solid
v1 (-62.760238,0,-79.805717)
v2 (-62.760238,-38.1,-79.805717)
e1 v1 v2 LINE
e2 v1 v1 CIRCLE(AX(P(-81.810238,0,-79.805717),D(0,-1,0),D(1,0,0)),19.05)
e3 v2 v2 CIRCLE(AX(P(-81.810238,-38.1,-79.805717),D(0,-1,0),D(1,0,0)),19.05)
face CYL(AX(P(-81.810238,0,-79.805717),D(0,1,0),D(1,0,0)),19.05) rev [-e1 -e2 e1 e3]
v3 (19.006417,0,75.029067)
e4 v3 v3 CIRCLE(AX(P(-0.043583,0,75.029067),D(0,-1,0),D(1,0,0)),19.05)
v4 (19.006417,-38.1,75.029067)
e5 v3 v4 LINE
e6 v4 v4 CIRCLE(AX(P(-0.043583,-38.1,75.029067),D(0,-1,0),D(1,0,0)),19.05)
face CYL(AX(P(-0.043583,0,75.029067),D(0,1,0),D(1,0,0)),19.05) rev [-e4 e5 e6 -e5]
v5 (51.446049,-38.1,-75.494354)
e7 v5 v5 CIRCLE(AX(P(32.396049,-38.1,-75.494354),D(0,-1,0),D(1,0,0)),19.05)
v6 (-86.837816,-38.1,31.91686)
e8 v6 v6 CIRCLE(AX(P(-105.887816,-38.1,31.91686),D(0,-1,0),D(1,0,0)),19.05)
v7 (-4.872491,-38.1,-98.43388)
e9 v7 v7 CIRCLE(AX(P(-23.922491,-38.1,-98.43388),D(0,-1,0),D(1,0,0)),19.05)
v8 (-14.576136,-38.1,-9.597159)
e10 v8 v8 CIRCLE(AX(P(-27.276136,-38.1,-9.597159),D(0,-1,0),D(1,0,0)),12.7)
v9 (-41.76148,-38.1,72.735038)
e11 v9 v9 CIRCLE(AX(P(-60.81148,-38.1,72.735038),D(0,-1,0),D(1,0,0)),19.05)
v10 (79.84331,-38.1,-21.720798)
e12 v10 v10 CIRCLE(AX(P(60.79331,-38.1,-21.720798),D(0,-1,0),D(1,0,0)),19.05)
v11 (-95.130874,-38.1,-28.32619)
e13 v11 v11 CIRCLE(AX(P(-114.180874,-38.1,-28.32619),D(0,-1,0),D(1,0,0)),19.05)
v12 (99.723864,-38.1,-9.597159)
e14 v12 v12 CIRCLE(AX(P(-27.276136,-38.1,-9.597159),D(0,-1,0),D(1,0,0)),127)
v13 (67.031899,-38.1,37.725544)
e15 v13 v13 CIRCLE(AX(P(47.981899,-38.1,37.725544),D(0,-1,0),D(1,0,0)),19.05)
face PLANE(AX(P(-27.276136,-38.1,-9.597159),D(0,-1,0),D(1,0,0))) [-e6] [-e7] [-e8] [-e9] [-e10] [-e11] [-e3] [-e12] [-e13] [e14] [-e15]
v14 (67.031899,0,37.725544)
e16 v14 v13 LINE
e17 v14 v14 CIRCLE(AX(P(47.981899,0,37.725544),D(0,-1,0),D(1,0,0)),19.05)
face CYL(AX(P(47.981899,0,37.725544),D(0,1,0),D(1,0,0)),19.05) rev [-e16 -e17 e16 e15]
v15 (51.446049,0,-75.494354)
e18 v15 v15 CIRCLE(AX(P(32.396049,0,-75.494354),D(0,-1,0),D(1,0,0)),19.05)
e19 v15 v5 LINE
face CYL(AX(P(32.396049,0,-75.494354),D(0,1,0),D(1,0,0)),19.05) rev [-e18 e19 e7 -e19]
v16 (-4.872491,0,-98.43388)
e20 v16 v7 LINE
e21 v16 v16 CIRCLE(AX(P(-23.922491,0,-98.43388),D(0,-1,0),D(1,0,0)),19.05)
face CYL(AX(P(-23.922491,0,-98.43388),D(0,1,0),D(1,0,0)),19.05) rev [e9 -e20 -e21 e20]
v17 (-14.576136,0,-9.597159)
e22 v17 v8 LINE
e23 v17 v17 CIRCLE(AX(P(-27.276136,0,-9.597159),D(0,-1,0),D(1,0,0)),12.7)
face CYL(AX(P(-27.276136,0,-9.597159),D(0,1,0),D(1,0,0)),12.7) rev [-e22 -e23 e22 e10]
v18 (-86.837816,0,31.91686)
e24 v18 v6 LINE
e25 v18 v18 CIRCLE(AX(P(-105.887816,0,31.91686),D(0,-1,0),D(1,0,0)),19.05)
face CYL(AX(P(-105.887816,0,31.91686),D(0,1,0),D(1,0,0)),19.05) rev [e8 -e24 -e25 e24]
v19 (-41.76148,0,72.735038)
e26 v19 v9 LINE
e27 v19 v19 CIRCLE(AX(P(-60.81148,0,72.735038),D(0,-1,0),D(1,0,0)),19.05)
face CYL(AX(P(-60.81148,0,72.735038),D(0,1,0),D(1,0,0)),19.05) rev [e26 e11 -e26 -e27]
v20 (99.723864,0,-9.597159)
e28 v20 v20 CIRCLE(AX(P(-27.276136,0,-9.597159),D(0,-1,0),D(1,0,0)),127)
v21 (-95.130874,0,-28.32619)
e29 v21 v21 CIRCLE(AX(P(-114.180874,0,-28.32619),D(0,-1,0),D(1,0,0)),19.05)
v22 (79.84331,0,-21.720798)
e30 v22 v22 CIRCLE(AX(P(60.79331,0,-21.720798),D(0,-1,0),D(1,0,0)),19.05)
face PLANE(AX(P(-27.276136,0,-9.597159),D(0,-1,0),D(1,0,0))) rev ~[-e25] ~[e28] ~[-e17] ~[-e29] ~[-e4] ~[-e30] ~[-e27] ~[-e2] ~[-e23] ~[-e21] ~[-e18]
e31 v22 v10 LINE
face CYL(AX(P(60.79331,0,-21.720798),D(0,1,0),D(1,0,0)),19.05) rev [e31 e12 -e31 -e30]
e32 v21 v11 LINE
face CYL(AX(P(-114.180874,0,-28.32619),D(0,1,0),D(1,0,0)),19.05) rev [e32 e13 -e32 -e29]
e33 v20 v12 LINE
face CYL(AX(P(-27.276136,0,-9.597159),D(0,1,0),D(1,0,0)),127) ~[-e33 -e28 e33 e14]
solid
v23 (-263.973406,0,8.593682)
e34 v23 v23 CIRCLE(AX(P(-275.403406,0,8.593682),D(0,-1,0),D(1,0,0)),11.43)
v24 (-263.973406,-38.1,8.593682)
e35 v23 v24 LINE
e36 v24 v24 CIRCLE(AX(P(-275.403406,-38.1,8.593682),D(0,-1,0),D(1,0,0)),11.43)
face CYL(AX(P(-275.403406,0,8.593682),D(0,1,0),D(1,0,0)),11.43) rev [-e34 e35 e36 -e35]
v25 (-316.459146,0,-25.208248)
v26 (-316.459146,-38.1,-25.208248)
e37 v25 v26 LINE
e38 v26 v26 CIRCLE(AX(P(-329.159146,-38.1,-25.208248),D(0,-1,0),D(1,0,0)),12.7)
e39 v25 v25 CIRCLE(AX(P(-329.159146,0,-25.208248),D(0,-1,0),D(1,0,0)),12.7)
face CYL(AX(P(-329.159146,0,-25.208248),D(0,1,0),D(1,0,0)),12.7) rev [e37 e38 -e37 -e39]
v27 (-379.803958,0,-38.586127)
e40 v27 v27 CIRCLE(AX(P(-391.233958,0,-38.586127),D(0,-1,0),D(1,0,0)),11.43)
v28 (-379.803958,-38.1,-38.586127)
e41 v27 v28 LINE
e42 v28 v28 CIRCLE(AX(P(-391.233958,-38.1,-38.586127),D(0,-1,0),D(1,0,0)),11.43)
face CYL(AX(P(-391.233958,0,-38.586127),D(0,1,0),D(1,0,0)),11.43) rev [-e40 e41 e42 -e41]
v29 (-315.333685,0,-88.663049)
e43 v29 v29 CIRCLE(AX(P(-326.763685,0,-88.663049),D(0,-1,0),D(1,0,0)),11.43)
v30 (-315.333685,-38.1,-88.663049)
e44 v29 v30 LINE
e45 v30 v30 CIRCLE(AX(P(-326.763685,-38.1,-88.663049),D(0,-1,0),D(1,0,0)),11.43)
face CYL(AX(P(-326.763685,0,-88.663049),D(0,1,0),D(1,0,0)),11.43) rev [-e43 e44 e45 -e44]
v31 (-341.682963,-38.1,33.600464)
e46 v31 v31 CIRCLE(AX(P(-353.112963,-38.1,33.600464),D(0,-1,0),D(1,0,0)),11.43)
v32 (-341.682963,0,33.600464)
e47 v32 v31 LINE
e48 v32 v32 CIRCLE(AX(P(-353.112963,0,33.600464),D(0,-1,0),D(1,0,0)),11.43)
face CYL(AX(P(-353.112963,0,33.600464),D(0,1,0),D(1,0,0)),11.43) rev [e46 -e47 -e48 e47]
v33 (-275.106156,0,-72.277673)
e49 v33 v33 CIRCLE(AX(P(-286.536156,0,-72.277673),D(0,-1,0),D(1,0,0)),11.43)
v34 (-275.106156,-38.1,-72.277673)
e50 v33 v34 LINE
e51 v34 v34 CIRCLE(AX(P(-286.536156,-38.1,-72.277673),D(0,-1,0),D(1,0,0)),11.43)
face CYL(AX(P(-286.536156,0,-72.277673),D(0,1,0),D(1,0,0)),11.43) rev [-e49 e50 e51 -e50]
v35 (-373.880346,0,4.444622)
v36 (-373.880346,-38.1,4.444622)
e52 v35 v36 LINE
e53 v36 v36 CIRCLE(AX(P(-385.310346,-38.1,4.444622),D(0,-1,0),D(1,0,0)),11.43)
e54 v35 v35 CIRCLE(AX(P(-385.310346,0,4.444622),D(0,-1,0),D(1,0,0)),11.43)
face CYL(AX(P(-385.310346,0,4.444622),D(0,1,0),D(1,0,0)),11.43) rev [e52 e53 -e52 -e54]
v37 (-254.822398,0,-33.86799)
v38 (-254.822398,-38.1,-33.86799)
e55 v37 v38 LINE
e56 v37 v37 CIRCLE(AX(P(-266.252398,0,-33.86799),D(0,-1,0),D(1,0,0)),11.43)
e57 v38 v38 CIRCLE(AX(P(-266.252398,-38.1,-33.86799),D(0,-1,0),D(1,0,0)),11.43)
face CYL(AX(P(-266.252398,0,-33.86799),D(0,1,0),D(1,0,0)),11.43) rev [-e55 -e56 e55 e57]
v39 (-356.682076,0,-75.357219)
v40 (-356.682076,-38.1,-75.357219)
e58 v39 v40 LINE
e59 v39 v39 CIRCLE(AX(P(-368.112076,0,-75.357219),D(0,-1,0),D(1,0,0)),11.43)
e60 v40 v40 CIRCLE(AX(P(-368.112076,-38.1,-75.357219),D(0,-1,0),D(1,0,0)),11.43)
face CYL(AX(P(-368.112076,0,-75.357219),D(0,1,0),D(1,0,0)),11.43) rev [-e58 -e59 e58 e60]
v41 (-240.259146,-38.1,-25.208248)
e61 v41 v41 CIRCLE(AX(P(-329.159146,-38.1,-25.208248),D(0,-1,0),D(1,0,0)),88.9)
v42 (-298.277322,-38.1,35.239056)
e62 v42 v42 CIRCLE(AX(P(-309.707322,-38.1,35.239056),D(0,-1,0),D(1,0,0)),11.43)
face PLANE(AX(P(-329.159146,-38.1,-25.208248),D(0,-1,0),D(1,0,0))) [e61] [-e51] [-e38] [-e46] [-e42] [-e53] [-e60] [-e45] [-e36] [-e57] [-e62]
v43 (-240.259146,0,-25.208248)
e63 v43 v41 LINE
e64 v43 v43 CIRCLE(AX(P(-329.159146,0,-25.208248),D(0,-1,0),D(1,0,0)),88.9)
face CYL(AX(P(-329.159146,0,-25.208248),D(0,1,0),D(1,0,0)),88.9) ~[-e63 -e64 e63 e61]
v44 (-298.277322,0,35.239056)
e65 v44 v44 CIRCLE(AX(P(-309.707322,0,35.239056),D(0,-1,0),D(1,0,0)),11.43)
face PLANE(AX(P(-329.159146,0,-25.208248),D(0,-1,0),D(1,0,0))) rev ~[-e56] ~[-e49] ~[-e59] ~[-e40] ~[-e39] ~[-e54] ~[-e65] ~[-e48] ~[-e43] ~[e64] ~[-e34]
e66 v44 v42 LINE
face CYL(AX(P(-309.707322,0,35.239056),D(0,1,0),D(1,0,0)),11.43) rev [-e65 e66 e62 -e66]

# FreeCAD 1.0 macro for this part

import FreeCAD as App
import Part
import Sketcher
Q = App.Units.Quantity

doc = App.newDocument("Part")
body = doc.addObject("PartDesign::Body", "Body")
body.AllowCompound = True

# Sketch on XZ plane
sketch1 = body.newObject("Sketcher::SketchObject", "Sketch")
sketch1.AttachmentSupport = (doc.getObject("XZ_Plane"), [""])
sketch1.MapMode = "FlatFace"
sketch1.addGeometry([
    Part.Circle(App.Vector(-27, -10, 0), App.Vector(0, 0, 1), 127),  # 0
    Part.Circle(App.Vector(-82, -80, 0), App.Vector(0, 0, 1), 19),  # 1
    Part.Circle(App.Vector(-114, -28, 0), App.Vector(0, 0, 1), 19),  # 2
    Part.Circle(App.Vector(-24, -98, 0), App.Vector(0, 0, 1), 19),  # 3
    Part.Circle(App.Vector(32, -75, 0), App.Vector(0, 0, 1), 19),  # 4
    Part.Circle(App.Vector(61, -22, 0), App.Vector(0, 0, 1), 19),  # 5
    Part.Circle(App.Vector(-106, 32, 0), App.Vector(0, 0, 1), 19),  # 6
    Part.Circle(App.Vector(-27, -10, 0), App.Vector(0, 0, 1), 13),  # 7
    Part.Circle(App.Vector(-61, 73, 0), App.Vector(0, 0, 1), 19),  # 8
    Part.Circle(App.Vector(48, 38, 0), App.Vector(0, 0, 1), 19),  # 9
    Part.Circle(App.Vector(0, 75, 0), App.Vector(0, 0, 1), 19),  # 10
    Part.Circle(App.Vector(-329, -25, 0), App.Vector(0, 0, 1), 89),  # 11
    Part.Circle(App.Vector(-368, -75, 0), App.Vector(0, 0, 1), 11),  # 12
    Part.Circle(App.Vector(-391, -39, 0), App.Vector(0, 0, 1), 11),  # 13
    Part.Circle(App.Vector(-327, -89, 0), App.Vector(0, 0, 1), 11),  # 14
    Part.Circle(App.Vector(-287, -72, 0), App.Vector(0, 0, 1), 11),  # 15
    Part.Circle(App.Vector(-266, -34, 0), App.Vector(0, 0, 1), 11),  # 16
    Part.Circle(App.Vector(-385, 4, 0), App.Vector(0, 0, 1), 11),  # 17
    Part.Circle(App.Vector(-329, -25, 0), App.Vector(0, 0, 1), 13),  # 18
    Part.Circle(App.Vector(-353, 34, 0), App.Vector(0, 0, 1), 11),  # 19
    Part.Circle(App.Vector(-275, 9, 0), App.Vector(0, 0, 1), 11),  # 20
    Part.Circle(App.Vector(-310, 35, 0), App.Vector(0, 0, 1), 11),  # 21
], False)
sketch1.addConstraint([
    Sketcher.Constraint("Coincident", 7, 3, 0, 3),
    Sketcher.Constraint("Coincident", 18, 3, 11, 3),
    Sketcher.Constraint("Equal", 1, 2),
    Sketcher.Constraint("Equal", 2, 3),
    Sketcher.Constraint("Equal", 3, 4),
    Sketcher.Constraint("Equal", 4, 5),
    Sketcher.Constraint("Equal", 5, 6),
    Sketcher.Constraint("Equal", 6, 8),
    Sketcher.Constraint("Equal", 8, 9),
    Sketcher.Constraint("Equal", 9, 10),
    Sketcher.Constraint("Equal", 12, 13),
    Sketcher.Constraint("Equal", 13, 14),
    Sketcher.Constraint("Equal", 14, 15),
    Sketcher.Constraint("Equal", 15, 16),
    Sketcher.Constraint("Equal", 16, 17),
    Sketcher.Constraint("Equal", 7, 18),
    Sketcher.Constraint("Equal", 17, 19),
    Sketcher.Constraint("Equal", 19, 20),
    Sketcher.Constraint("Equal", 20, 21),
    Sketcher.Constraint("Diameter", 0, Q("10 in")),
    Sketcher.Constraint("Diameter", 7, Q("1 in")),
    Sketcher.Constraint("Diameter", 11, Q("7 in")),
    Sketcher.Constraint("Diameter", 1, Q("1.5 in")),
    Sketcher.Constraint("Diameter", 12, Q("0.9 in")),
    Sketcher.Constraint("DistanceY", 3, 3, 5, 3, Q("3.0202001 in")),
    Sketcher.Constraint("DistanceX", 13, 3, 6, 3, Q("11.2341001 in")),
    Sketcher.Constraint("DistanceX", -1, 1, 9, 3, Q("47.981899 mm")),
    Sketcher.Constraint("DistanceX", 16, 3, -1, 1, Q("266.252398 mm")),
    Sketcher.Constraint("DistanceX", 1, 3, 0, 3, Q("54.534102 mm")),
    Sketcher.Constraint("DistanceX", 3, 3, 5, 3, Q("84.715801 mm")),
    Sketcher.Constraint("DistanceY", 4, 3, 9, 3, Q("113.219898 mm")),
    Sketcher.Constraint("DistanceX", 12, 3, 2, 3, Q("253.931202 mm")),
    Sketcher.Constraint("DistanceY", 1, 3, 12, 3, Q("4.448498 mm")),
    Sketcher.Constraint("DistanceY", 14, 3, 11, 3, Q("63.454801 mm")),
    Sketcher.Constraint("DistanceX", 13, 3, 15, 3, Q("104.697802 mm")),
    Sketcher.Constraint("DistanceX", 17, 3, 11, 3, Q("56.1512 mm")),
    Sketcher.Constraint("DistanceY", 0, 3, -1, 1, Q("9.597159 mm")),
    Sketcher.Constraint("DistanceX", 1, 3, -1, 1, Q("81.810238 mm")),
    Sketcher.Constraint("DistanceY", 2, 3, -1, 1, Q("28.32619 mm")),
    Sketcher.Constraint("DistanceX", 3, 3, -1, 1, Q("23.922491 mm")),
    Sketcher.Constraint("DistanceY", 3, 3, -1, 1, Q("98.43388 mm")),
    Sketcher.Constraint("DistanceX", -1, 1, 4, 3, Q("32.396049 mm")),
    Sketcher.Constraint("DistanceY", -1, 1, 6, 3, Q("31.91686 mm")),
    Sketcher.Constraint("DistanceX", 8, 3, -1, 1, Q("60.81148 mm")),
    Sketcher.Constraint("DistanceY", -1, 1, 8, 3, Q("72.735038 mm")),
    Sketcher.Constraint("DistanceY", 11, 3, -1, 1, Q("25.208248 mm")),
    Sketcher.Constraint("DistanceY", 12, 3, -1, 1, Q("75.357219 mm")),
    Sketcher.Constraint("DistanceY", 16, 3, -1, 1, Q("33.86799 mm")),
    Sketcher.Constraint("DistanceY", -1, 1, 20, 3, Q("8.593682 mm")),
    Sketcher.Constraint("DistanceX", 21, 3, -1, 1, Q("309.707322 mm")),
    Sketcher.Constraint("DistanceX", 2, 3, 0, 3, Q("86.904738 mm")),
    Sketcher.Constraint("DistanceX", 2, 3, 6, 3, Q("8.293058 mm")),
    Sketcher.Constraint("DistanceX", 10, 3, 9, 3, Q("48.025482 mm")),
    Sketcher.Constraint("DistanceY", 8, 3, 10, 3, Q("2.294029 mm")),
    Sketcher.Constraint("DistanceX", 11, 3, 2, 3, Q("214.978272 mm")),
    Sketcher.Constraint("DistanceY", 13, 3, 11, 3, Q("13.377879 mm")),
    Sketcher.Constraint("DistanceX", 12, 3, 14, 3, Q("41.348391 mm")),
    Sketcher.Constraint("DistanceY", 13, 3, 17, 3, Q("43.030749 mm")),
    Sketcher.Constraint("DistanceY", 13, 3, 19, 3, Q("72.186591 mm")),
    Sketcher.Constraint("DistanceX", 11, 3, 20, 3, Q("53.75574 mm")),
    Sketcher.Constraint("DistanceX", 19, 3, 21, 3, Q("43.405641 mm")),
    Sketcher.Constraint("DistanceY", 19, 3, 21, 3, Q("1.638592 mm")),
    Sketcher.Constraint("DistanceY", 4, 3, -1, 1, Q("75.494354 mm")),
    Sketcher.Constraint("DistanceY", 15, 3, -1, 1, Q("72.277673 mm")),
])
pad1 = body.newObject("PartDesign::Pad", "Pad")
pad1.Profile = sketch1
pad1.Length = Q("1.5 in")

doc.recompute()
